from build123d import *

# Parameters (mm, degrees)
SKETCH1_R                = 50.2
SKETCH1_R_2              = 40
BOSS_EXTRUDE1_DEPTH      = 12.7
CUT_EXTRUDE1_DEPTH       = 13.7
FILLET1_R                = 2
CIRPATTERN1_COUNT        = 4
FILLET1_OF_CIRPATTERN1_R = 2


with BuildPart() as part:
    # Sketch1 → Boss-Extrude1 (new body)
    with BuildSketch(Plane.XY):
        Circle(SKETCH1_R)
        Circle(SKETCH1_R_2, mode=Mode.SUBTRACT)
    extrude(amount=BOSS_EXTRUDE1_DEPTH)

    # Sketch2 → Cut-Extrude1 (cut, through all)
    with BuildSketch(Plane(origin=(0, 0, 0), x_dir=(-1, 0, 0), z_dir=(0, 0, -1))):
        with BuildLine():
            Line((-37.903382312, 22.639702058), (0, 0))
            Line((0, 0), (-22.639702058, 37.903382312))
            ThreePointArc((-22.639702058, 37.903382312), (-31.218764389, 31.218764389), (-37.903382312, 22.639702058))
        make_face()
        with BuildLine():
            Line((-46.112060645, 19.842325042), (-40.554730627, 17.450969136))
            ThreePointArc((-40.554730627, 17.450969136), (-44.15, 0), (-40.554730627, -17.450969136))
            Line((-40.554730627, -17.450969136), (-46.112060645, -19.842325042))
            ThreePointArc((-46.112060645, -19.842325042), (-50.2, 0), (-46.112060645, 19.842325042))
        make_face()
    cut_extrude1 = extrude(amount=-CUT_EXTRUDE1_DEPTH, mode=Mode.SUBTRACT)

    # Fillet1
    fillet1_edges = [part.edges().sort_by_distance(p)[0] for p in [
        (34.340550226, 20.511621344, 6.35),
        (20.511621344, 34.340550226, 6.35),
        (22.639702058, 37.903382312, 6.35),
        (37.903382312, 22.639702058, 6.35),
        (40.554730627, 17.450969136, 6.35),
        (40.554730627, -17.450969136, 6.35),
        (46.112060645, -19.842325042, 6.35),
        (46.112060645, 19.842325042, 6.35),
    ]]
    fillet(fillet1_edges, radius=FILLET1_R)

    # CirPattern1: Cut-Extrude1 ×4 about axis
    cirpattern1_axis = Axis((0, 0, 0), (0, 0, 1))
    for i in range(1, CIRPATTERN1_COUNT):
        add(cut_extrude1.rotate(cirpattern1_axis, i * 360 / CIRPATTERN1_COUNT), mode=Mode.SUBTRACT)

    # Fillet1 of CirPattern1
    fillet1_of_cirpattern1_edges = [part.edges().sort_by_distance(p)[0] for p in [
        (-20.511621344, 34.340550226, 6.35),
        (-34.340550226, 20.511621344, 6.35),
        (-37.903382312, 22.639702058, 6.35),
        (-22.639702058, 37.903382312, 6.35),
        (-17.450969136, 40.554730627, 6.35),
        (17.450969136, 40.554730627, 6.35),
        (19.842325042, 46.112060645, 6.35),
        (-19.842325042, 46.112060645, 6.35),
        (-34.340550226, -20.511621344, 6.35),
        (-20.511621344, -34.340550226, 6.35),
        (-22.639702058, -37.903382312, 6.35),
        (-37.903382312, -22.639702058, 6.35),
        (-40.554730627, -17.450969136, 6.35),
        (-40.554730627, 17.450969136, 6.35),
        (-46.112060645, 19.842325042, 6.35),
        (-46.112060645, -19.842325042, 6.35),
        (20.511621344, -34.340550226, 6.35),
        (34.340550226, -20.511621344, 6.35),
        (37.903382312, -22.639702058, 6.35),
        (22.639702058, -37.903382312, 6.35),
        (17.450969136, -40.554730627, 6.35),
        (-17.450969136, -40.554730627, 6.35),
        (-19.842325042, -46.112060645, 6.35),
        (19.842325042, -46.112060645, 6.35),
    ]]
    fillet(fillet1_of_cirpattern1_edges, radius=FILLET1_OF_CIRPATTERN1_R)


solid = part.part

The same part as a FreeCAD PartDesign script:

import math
import FreeCAD as App
import Part
import Sketcher
from FreeCAD import Vector
Q = App.Units.Quantity


def edges_at(feature, points):
    """Names of the edges that pass closest to the given points."""
    edges = feature.Shape.Edges
    near = lambda p: min(range(len(edges)), key=lambda i: edges[i].distToShape(Part.Vertex(*p))[0])
    return sorted({f"Edge{near(p) + 1}" for p in points})

doc = App.newDocument("Part")
body = doc.addObject("PartDesign::Body", "Body")

sketch1 = doc.addObject("Sketcher::SketchObject", "Sketch")
body.addObject(sketch1)
sketch1.AttachmentSupport = (doc.XY_Plane, [""])
sketch1.MapMode = "FlatFace"
sketch1.addGeometry([
    Part.Circle(Vector(0, 0, 0), Vector(0, 0, 1), 50.2),
    Part.Circle(Vector(0, 0, 0), Vector(0, 0, 1), 40),
], False)
sketch1.addConstraint([
    Sketcher.Constraint("Coincident", 0, 3, -1, 1),
    Sketcher.Constraint("Coincident", 1, 3, -1, 1),
    Sketcher.Constraint("Diameter", 1, Q("80 mm")),
    Sketcher.Constraint("Diameter", 0, Q("100.4 mm")),
])
pad1 = doc.addObject("PartDesign::Pad", "Pad")
body.addObject(pad1)
pad1.Profile = sketch1
pad1.Length = 12.7

sketch2 = doc.addObject("Sketcher::SketchObject", "Sketch001")
body.addObject(sketch2)
sketch2.AttachmentSupport = (doc.XY_Plane, [""])
sketch2.MapMode = "FlatFace"
sketch2.addGeometry([
    Part.LineSegment(Vector(37.903382, 22.639702, 0), Vector(0, 0, 0)),
    Part.LineSegment(Vector(0, 0, 0), Vector(22.639702, 37.903382, 0)),
    Part.ArcOfCircle(Part.Circle(Vector(0, 0, 0), Vector(0, 0, 1), 44.15), math.radians(30.849885), math.radians(59.150115)),
    Part.LineSegment(Vector(40.554731, 17.450969, 0), Vector(46.112061, 19.842325, 0)),
    Part.ArcOfCircle(Part.Circle(Vector(0, 0, 0), Vector(0, 0, 1), 50.2), math.radians(-23.28253), math.radians(23.28253)),
    Part.LineSegment(Vector(46.112061, -19.842325, 0), Vector(40.554731, -17.450969, 0)),
    Part.ArcOfCircle(Part.Circle(Vector(0, 0, 0), Vector(0, 0, 1), 44.15), math.radians(-23.28253), math.radians(23.28253)),
], False)
sketch2.addConstraint([
    Sketcher.Constraint("Coincident", 0, 2, 1, 1),
    Sketcher.Constraint("Coincident", 1, 2, 2, 2),
    Sketcher.Constraint("Coincident", 2, 1, 0, 1),
    Sketcher.Constraint("Coincident", 3, 2, 4, 2),
    Sketcher.Constraint("Coincident", 4, 1, 5, 1),
    Sketcher.Constraint("Coincident", 5, 2, 6, 1),
    Sketcher.Constraint("Coincident", 6, 2, 3, 1),
    Sketcher.Constraint("Coincident", 2, 3, -1, 1),
    Sketcher.Constraint("Coincident", 4, 3, -1, 1),
    Sketcher.Constraint("Coincident", 6, 3, -1, 1),
    Sketcher.Constraint("Coincident", 0, 2, -1, 1),
    Sketcher.Constraint("Equal", 2, 6),
    Sketcher.Constraint("Vertical", 3, 2, 4, 1),
    Sketcher.Constraint("Vertical", 5, 2, 6, 2),
    Sketcher.Constraint("Radius", 4, Q("50.2 mm")),
    Sketcher.Constraint("Radius", 2, Q("44.15 mm")),
    Sketcher.Constraint("DistanceX", -1, 1, 3, 2, Q("46.112061 mm")),
    Sketcher.Constraint("DistanceX", -1, 1, 5, 2, Q("40.554731 mm")),
    Sketcher.Constraint("DistanceX", 1, 2, 2, 1, Q("15.26368 mm")),
    Sketcher.Constraint("DistanceY", 2, 1, 1, 2, Q("15.26368 mm")),
])
pocket1 = doc.addObject("PartDesign::Pocket", "Pocket")
body.addObject(pocket1)
pocket1.Profile = sketch2
pocket1.Type = "ThroughAll"
pocket1.Reversed = True
doc.recompute()

fillet = doc.addObject("PartDesign::Fillet", "Fillet")
body.addObject(fillet)
fillet.Base = (pocket1, edges_at(pocket1, [
    (34.341, 20.512, 6.35),
    (20.512, 34.341, 6.35),
    (22.64, 37.903, 6.35),
    (37.903, 22.64, 6.35),
    (40.555, 17.451, 6.35),
    (40.555, -17.451, 6.35),
    (46.112, -19.842, 6.35),
    (46.112, 19.842, 6.35),
]))
fillet.Radius = 2
doc.recompute()

polarpattern = doc.addObject("PartDesign::PolarPattern", "PolarPattern")
body.addObject(polarpattern)
polarpattern.Originals = [pocket1]
polarpattern.Axis = (doc.Z_Axis, [""])
polarpattern.Angle = 360
polarpattern.Occurrences = 4
body.Tip = polarpattern
doc.recompute()

fillet2 = doc.addObject("PartDesign::Fillet", "Fillet001")
body.addObject(fillet2)
fillet2.Base = (polarpattern, edges_at(polarpattern, [
    (-20.512, 34.341, 6.35),
    (-34.341, 20.512, 6.35),
    (-37.903, 22.64, 6.35),
    (-22.64, 37.903, 6.35),
    (-17.451, 40.555, 6.35),
    (17.451, 40.555, 6.35),
    (19.842, 46.112, 6.35),
    (-19.842, 46.112, 6.35),
    (-34.341, -20.512, 6.35),
    (-20.512, -34.341, 6.35),
    (-22.64, -37.903, 6.35),
    (-37.903, -22.64, 6.35),
    (-40.555, -17.451, 6.35),
    (-40.555, 17.451, 6.35),
    (-46.112, 19.842, 6.35),
    (-46.112, -19.842, 6.35),
    (20.512, -34.341, 6.35),
    (34.341, -20.512, 6.35),
    (37.903, -22.64, 6.35),
    (22.64, -37.903, 6.35),
    (17.451, -40.555, 6.35),
    (-17.451, -40.555, 6.35),
    (-19.842, -46.112, 6.35),
    (19.842, -46.112, 6.35),
]))
fillet2.Radius = 2

doc.recompute()
